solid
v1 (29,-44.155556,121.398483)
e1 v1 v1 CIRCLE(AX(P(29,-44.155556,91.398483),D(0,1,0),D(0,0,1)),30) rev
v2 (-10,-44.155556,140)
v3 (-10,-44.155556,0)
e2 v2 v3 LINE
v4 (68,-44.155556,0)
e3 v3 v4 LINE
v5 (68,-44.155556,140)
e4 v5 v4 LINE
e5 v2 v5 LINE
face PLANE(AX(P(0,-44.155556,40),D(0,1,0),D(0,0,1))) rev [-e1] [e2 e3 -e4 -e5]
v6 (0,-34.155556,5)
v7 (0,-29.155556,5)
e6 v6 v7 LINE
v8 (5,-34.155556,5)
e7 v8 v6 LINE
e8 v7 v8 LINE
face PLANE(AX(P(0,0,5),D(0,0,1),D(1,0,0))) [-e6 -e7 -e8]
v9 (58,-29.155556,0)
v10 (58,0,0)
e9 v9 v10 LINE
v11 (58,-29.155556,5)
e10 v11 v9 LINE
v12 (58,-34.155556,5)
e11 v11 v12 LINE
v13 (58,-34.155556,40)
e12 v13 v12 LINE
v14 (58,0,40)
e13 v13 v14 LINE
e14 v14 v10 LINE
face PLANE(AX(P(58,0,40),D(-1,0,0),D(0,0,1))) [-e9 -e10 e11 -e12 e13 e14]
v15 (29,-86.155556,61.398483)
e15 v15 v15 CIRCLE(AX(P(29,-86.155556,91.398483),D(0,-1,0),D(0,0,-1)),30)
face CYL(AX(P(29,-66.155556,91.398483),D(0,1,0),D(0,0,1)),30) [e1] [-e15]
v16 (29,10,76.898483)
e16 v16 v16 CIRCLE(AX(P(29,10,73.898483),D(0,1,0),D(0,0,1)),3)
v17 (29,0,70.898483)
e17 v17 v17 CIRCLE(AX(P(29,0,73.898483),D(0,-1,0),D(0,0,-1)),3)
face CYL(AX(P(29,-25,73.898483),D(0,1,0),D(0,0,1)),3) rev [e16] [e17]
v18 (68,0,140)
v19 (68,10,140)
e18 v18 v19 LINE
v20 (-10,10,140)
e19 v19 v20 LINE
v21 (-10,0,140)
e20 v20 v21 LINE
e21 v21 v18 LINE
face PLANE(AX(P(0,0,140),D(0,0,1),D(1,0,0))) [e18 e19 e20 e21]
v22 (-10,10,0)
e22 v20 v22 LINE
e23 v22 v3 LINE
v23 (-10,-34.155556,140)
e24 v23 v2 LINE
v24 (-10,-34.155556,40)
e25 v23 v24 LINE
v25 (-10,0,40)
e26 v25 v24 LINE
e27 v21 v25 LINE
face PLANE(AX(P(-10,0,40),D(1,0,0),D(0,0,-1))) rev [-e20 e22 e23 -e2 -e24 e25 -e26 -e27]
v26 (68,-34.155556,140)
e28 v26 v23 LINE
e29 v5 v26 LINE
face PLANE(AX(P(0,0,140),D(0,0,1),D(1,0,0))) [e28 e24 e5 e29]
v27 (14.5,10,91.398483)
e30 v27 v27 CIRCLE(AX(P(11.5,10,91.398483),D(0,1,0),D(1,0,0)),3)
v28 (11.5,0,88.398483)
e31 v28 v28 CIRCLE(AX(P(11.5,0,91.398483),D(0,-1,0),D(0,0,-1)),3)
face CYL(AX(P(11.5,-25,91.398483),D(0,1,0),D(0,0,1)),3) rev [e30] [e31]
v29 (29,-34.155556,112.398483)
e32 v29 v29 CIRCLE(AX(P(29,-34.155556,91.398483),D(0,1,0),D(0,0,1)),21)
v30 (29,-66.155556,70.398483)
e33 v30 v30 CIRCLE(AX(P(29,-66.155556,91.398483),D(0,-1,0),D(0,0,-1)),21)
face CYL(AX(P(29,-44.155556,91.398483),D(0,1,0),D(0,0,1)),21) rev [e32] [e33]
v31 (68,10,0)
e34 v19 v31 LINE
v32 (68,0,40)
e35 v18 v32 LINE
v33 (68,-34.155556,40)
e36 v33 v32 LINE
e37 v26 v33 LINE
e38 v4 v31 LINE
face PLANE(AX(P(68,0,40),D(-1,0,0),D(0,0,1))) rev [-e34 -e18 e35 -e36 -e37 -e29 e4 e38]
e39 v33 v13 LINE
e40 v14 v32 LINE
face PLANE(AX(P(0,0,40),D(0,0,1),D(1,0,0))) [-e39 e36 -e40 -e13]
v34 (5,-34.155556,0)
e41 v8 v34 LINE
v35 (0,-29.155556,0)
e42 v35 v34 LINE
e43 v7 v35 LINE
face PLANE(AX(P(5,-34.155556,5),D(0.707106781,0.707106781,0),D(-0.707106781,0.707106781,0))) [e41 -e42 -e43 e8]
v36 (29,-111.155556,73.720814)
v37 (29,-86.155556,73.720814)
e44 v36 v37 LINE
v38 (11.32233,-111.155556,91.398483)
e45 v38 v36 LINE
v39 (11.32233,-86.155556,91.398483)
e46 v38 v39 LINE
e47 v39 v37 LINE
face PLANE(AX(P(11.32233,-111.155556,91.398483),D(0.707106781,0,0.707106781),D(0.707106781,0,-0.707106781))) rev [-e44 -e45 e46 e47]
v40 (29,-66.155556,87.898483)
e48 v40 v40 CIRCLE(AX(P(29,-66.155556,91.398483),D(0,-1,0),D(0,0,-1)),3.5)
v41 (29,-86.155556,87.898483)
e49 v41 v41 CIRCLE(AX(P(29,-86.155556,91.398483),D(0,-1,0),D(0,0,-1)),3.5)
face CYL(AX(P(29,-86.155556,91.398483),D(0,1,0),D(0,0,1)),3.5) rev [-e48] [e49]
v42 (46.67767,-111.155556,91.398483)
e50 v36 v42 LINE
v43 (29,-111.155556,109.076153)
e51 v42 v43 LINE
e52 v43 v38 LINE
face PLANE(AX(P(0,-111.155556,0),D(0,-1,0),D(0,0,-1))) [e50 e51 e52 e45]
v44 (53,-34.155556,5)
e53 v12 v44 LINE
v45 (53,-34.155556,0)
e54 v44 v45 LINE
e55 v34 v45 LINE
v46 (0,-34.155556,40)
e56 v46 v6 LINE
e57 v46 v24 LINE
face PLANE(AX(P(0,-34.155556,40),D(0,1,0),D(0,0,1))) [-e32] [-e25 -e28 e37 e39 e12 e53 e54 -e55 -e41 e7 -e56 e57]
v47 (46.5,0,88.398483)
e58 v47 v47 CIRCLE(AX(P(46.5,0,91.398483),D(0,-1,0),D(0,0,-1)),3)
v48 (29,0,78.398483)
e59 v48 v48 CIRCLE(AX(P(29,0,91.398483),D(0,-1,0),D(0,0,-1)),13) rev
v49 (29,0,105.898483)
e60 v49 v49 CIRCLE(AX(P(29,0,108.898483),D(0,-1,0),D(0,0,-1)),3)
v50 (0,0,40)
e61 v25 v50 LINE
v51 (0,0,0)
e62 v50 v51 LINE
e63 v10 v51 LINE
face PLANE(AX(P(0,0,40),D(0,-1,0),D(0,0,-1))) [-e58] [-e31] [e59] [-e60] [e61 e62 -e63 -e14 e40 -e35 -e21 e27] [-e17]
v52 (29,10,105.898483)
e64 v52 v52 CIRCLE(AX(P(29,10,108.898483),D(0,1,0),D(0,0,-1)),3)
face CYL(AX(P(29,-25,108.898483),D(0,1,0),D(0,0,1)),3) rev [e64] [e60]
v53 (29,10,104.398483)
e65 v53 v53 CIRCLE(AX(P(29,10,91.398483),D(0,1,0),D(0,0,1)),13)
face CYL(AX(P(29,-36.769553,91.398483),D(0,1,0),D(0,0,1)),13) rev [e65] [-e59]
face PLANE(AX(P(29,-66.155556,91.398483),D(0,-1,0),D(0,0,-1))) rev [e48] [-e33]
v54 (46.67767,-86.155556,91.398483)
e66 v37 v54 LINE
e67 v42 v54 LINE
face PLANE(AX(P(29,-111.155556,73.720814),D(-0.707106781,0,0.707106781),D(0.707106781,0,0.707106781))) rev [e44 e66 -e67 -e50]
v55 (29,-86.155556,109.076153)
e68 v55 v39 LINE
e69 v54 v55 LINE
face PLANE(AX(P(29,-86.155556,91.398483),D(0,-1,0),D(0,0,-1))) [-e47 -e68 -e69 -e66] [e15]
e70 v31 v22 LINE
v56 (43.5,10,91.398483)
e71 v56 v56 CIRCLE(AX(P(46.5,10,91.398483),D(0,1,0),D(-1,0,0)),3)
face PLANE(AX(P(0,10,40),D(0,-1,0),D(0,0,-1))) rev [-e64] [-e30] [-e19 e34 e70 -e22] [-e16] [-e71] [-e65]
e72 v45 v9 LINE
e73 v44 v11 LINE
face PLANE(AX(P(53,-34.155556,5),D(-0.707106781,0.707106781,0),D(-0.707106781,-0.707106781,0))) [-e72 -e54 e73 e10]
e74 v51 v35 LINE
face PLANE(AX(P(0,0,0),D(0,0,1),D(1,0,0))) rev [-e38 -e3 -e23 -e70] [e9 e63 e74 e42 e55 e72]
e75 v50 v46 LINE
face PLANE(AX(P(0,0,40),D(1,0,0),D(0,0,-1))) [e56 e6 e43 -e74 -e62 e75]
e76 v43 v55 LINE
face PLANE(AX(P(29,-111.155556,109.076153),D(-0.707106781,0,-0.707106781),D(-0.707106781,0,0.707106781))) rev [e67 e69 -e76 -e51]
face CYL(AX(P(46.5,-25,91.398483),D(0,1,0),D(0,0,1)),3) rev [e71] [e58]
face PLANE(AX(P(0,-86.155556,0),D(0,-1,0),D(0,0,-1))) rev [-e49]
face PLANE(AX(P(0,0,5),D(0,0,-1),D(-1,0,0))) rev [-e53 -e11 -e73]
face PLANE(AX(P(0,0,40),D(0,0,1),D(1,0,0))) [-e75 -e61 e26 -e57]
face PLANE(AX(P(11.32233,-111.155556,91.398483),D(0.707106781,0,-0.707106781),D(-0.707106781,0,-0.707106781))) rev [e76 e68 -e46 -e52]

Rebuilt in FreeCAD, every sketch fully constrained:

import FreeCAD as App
import Part
import Sketcher

doc = App.newDocument("Part")
body = doc.addObject("PartDesign::Body", "Body")

sketch1 = body.newObject("Sketcher::SketchObject", "Sketch")
sketch1.AttachmentSupport = (doc.getObject("XY_Plane"), [""])
sketch1.MapMode = "FlatFace"
sketch1.addGeometry([
    Part.LineSegment(App.Vector(-10, 10, 0), App.Vector(-10, -44, 0)),
    Part.LineSegment(App.Vector(-10, -44, 0), App.Vector(68, -44, 0)),
    Part.LineSegment(App.Vector(68, -44, 0), App.Vector(68, 10, 0)),
    Part.LineSegment(App.Vector(68, 10, 0), App.Vector(-10, 10, 0)),
    Part.LineSegment(App.Vector(58, -34, 0), App.Vector(0, -34, 0)),
    Part.LineSegment(App.Vector(0, -34, 0), App.Vector(0, 0, 0)),
    Part.LineSegment(App.Vector(0, 0, 0), App.Vector(58, 0, 0)),
    Part.LineSegment(App.Vector(58, 0, 0), App.Vector(58, -34, 0)),
], False)
sketch1.addConstraint([
    Sketcher.Constraint("Coincident", 0, 2, 1, 1),
    Sketcher.Constraint("Coincident", 1, 2, 2, 1),
    Sketcher.Constraint("Coincident", 2, 2, 3, 1),
    Sketcher.Constraint("Coincident", 3, 2, 0, 1),
    Sketcher.Constraint("Coincident", 4, 2, 5, 1),
    Sketcher.Constraint("Coincident", 5, 2, 6, 1),
    Sketcher.Constraint("Coincident", 6, 2, 7, 1),
    Sketcher.Constraint("Coincident", 7, 2, 4, 1),
    Sketcher.Constraint("Vertical", 0),
    Sketcher.Constraint("Horizontal", 1),
    Sketcher.Constraint("Vertical", 2),
    Sketcher.Constraint("Horizontal", 3),
    Sketcher.Constraint("Horizontal", 4),
    Sketcher.Constraint("Vertical", 5),
    Sketcher.Constraint("Horizontal", 6),
    Sketcher.Constraint("Vertical", 7),
    Sketcher.Constraint("Coincident", 5, 2, -1, 1),
    Sketcher.Constraint("DistanceX", 1, 1, 1, 2, 78.0),
    Sketcher.Constraint("DistanceX", 4, 2, 4, 1, 58.0),
    Sketcher.Constraint("DistanceX", 0, 2, -1, 1, 10.0),
    Sketcher.Constraint("DistanceY", -1, 1, 2, 2, 10.0),
    Sketcher.Constraint("DistanceY", 0, 2, 4, 2, 10.0),
    Sketcher.Constraint("DistanceY", 0, 2, 0, 1, 54.155556),
])
pad1 = body.newObject("PartDesign::Pad", "Pad")
pad1.Profile = sketch1
pad1.Length = 40

sketch2 = body.newObject("Sketcher::SketchObject", "Sketch001")
sketch2.AttachmentSupport = (doc.getObject("XY_Plane"), [""])
sketch2.MapMode = "FlatFace"
sketch2.AttachmentOffset = App.Placement(App.Vector(0, 0, 40), App.Rotation())
sketch2.addGeometry([
    Part.LineSegment(App.Vector(-10, -34, 0), App.Vector(-10, -44, 0)),
    Part.LineSegment(App.Vector(-10, -44, 0), App.Vector(68, -44, 0)),
    Part.LineSegment(App.Vector(68, -44, 0), App.Vector(68, -34, 0)),
    Part.LineSegment(App.Vector(68, -34, 0), App.Vector(-10, -34, 0)),
], False)
sketch2.addConstraint([
    Sketcher.Constraint("Coincident", 0, 2, 1, 1),
    Sketcher.Constraint("Coincident", 1, 2, 2, 1),
    Sketcher.Constraint("Coincident", 2, 2, 3, 1),
    Sketcher.Constraint("Coincident", 3, 2, 0, 1),
    Sketcher.Constraint("Vertical", 0),
    Sketcher.Constraint("Horizontal", 1),
    Sketcher.Constraint("Vertical", 2),
    Sketcher.Constraint("Horizontal", 3),
    Sketcher.Constraint("DistanceX", 1, 1, 1, 2, 78.0),
    Sketcher.Constraint("DistanceY", 0, 2, 0, 1, 10.0),
    Sketcher.Constraint("DistanceX", 0, 2, -1, 1, 10.0),
    Sketcher.Constraint("DistanceY", 0, 2, -1, 1, 44.155556),
])
pad2 = body.newObject("PartDesign::Pad", "Pad001")
pad2.Profile = sketch2
pad2.Length = 100

sketch3 = body.newObject("Sketcher::SketchObject", "Sketch002")
sketch3.AttachmentSupport = (doc.getObject("XY_Plane"), [""])
sketch3.MapMode = "FlatFace"
sketch3.addGeometry([
    Part.LineSegment(App.Vector(58, -29, 0), App.Vector(58, -34, 0)),
    Part.LineSegment(App.Vector(58, -34, 0), App.Vector(53, -34, 0)),
    Part.LineSegment(App.Vector(53, -34, 0), App.Vector(58, -29, 0)),
    Part.LineSegment(App.Vector(0, -34, 0), App.Vector(0, -29, 0)),
    Part.LineSegment(App.Vector(0, -29, 0), App.Vector(5, -34, 0)),
    Part.LineSegment(App.Vector(5, -34, 0), App.Vector(0, -34, 0)),
], False)
sketch3.addConstraint([
    Sketcher.Constraint("Coincident", 0, 2, 1, 1),
    Sketcher.Constraint("Coincident", 1, 2, 2, 1),
    Sketcher.Constraint("Coincident", 2, 2, 0, 1),
    Sketcher.Constraint("Coincident", 3, 2, 4, 1),
    Sketcher.Constraint("Coincident", 4, 2, 5, 1),
    Sketcher.Constraint("Coincident", 5, 2, 3, 1),
    Sketcher.Constraint("Vertical", 0),
    Sketcher.Constraint("Horizontal", 1),
    Sketcher.Constraint("Vertical", 3),
    Sketcher.Constraint("Horizontal", 5),
    Sketcher.Constraint("PointOnObject", 3, 2, -2),
    Sketcher.Constraint("Perpendicular", 2, 4),
    Sketcher.Constraint("Horizontal", 2, 2, 3, 2),
    Sketcher.Constraint("Horizontal", 1, 2, 4, 2),
    Sketcher.Constraint("Equal", 1, 5),
    Sketcher.Constraint("DistanceX", 1, 2, 1, 1, 5.0),
    Sketcher.Constraint("DistanceX", -1, 1, 0, 2, 58.0),
    Sketcher.Constraint("DistanceY", 0, 2, -1, 1, 34.155556),
])
pad3 = body.newObject("PartDesign::Pad", "Pad002")
pad3.Profile = sketch3
pad3.Length = 5

sketch4 = body.newObject("Sketcher::SketchObject", "Sketch003")
sketch4.AttachmentSupport = (doc.getObject("XZ_Plane"), [""])
sketch4.MapMode = "FlatFace"
sketch4.AttachmentOffset = App.Placement(App.Vector(0, 0, 34.155556), App.Rotation())
sketch4.addGeometry(Part.Circle(App.Vector(29, 91, 0), App.Vector(0, 0, 1), 21), False)
sketch4.addConstraint([
    Sketcher.Constraint("Diameter", 0, 42.0),
    Sketcher.Constraint("DistanceX", -1, 1, 0, 3, 29.0),
    Sketcher.Constraint("DistanceY", -1, 1, 0, 3, 91.398483),
])
pocket1 = body.newObject("PartDesign::Pocket", "Pocket")
pocket1.Profile = sketch4
pocket1.Type = "ThroughAll"
pocket1.Reversed = True

sketch5 = body.newObject("Sketcher::SketchObject", "Sketch004")
sketch5.AttachmentSupport = (doc.getObject("XY_Plane"), [""])
sketch5.MapMode = "FlatFace"
sketch5.AttachmentOffset = App.Placement(App.Vector(0, 0, 40), App.Rotation())
sketch5.addGeometry([
    Part.LineSegment(App.Vector(-10, 10, 0), App.Vector(-10, 0, 0)),
    Part.LineSegment(App.Vector(-10, 0, 0), App.Vector(68, 0, 0)),
    Part.LineSegment(App.Vector(68, 0, 0), App.Vector(68, 10, 0)),
    Part.LineSegment(App.Vector(68, 10, 0), App.Vector(-10, 10, 0)),
], False)
sketch5.addConstraint([
    Sketcher.Constraint("Coincident", 0, 2, 1, 1),
    Sketcher.Constraint("Coincident", 1, 2, 2, 1),
    Sketcher.Constraint("Coincident", 2, 2, 3, 1),
    Sketcher.Constraint("Coincident", 3, 2, 0, 1),
    Sketcher.Constraint("Vertical", 0),
    Sketcher.Constraint("Horizontal", 1),
    Sketcher.Constraint("Vertical", 2),
    Sketcher.Constraint("Horizontal", 3),
    Sketcher.Constraint("PointOnObject", 0, 2, -1),
    Sketcher.Constraint("DistanceX", 1, 1, 1, 2, 78.0),
    Sketcher.Constraint("DistanceY", 0, 2, 0, 1, 10.0),
    Sketcher.Constraint("DistanceX", 0, 2, -1, 1, 10.0),
])
pad4 = body.newObject("PartDesign::Pad", "Pad003")
pad4.Profile = sketch5
pad4.Length = 100

sketch6 = body.newObject("Sketcher::SketchObject", "Sketch005")
sketch6.AttachmentSupport = (doc.getObject("XZ_Plane"), [""])
sketch6.MapMode = "FlatFace"
sketch6.AttachmentOffset = App.Placement(App.Vector(0, 0, -10), App.Rotation())
sketch6.addGeometry(Part.Circle(App.Vector(29, 91, 0), App.Vector(0, 0, 1), 13), False)
sketch6.addConstraint([
    Sketcher.Constraint("Diameter", 0, 26.0),
    Sketcher.Constraint("DistanceX", -1, 1, 0, 3, 29.0),
    Sketcher.Constraint("DistanceY", -1, 1, 0, 3, 91.398483),
])
pocket2 = body.newObject("PartDesign::Pocket", "Pocket001")
pocket2.Profile = sketch6
pocket2.Type = "UpToFirst"
pocket2.Reversed = True

sketch7 = body.newObject("Sketcher::SketchObject", "Sketch006")
sketch7.AttachmentSupport = (doc.getObject("XZ_Plane"), [""])
sketch7.MapMode = "FlatFace"
sketch7.AttachmentOffset = App.Placement(App.Vector(0, 0, -10), App.Rotation())
sketch7.addGeometry(Part.Circle(App.Vector(29, 73.9, 0), App.Vector(0, 0, 1), 3), False)
sketch7.addConstraint([
    Sketcher.Constraint("Diameter", 0, 6.0),
    Sketcher.Constraint("DistanceX", -1, 1, 0, 3, 29.0),
    Sketcher.Constraint("DistanceY", -1, 1, 0, 3, 73.898483),
])
pocket3 = body.newObject("PartDesign::Pocket", "Pocket002")
pocket3.Profile = sketch7
pocket3.Length = 35
pocket3.Reversed = True
doc.recompute()

datumline = body.newObject("PartDesign::Line", "DatumLine")
datumline.Placement = App.Placement(App.Vector(29, 0, 91.398483), App.Rotation(App.Vector(0, 0, 1), App.Vector(0, 1, 0)))
polarpattern = body.newObject("PartDesign::PolarPattern", "PolarPattern")
polarpattern.Originals = [pocket3]
polarpattern.Axis = (datumline, [""])
polarpattern.Angle = 360
polarpattern.Occurrences = 4
body.Tip = polarpattern

sketch8 = body.newObject("Sketcher::SketchObject", "Sketch007")
sketch8.AttachmentSupport = (doc.getObject("XZ_Plane"), [""])
sketch8.MapMode = "FlatFace"
sketch8.AttachmentOffset = App.Placement(App.Vector(0, 0, 44.155556), App.Rotation())
sketch8.addGeometry([
    Part.Circle(App.Vector(29, 91, 0), App.Vector(0, 0, 1), 30),
    Part.Circle(App.Vector(29, 91, 0), App.Vector(0, 0, 1), 21),
], False)
sketch8.addConstraint([
    Sketcher.Constraint("Coincident", 1, 3, 0, 3),
    Sketcher.Constraint("Diameter", 0, 60.0),
    Sketcher.Constraint("Diameter", 1, 42.0),
    Sketcher.Constraint("DistanceX", -1, 1, 0, 3, 29.0),
    Sketcher.Constraint("DistanceY", -1, 1, 0, 3, 91.398483),
])
pad5 = body.newObject("PartDesign::Pad", "Pad004")
pad5.Profile = sketch8
pad5.Length = 22

sketch9 = body.newObject("Sketcher::SketchObject", "Sketch008")
sketch9.AttachmentSupport = (doc.getObject("XZ_Plane"), [""])
sketch9.MapMode = "FlatFace"
sketch9.AttachmentOffset = App.Placement(App.Vector(0, 0, 66.155556), App.Rotation())
sketch9.addGeometry([
    Part.Circle(App.Vector(29, 91.4, 0), App.Vector(0, 0, 1), 30),
    Part.Circle(App.Vector(29, 91.4, 0), App.Vector(0, 0, 1), 3.5),
], False)
sketch9.addConstraint([
    Sketcher.Constraint("Coincident", 1, 3, 0, 3),
    Sketcher.Constraint("Diameter", 0, 60.0),
    Sketcher.Constraint("Diameter", 1, 7.0),
    Sketcher.Constraint("DistanceX", -1, 1, 0, 3, 29.0),
    Sketcher.Constraint("DistanceY", -1, 1, 0, 3, 91.398483),
])
pad6 = body.newObject("PartDesign::Pad", "Pad005")
pad6.Profile = sketch9
pad6.Length = 20

sketch10 = body.newObject("Sketcher::SketchObject", "Sketch009")
sketch10.AttachmentSupport = (doc.getObject("XZ_Plane"), [""])
sketch10.MapMode = "FlatFace"
sketch10.AttachmentOffset = App.Placement(App.Vector(0, 0, 86.155556), App.Rotation())
sketch10.addGeometry([
    Part.LineSegment(App.Vector(29, 109, 0), App.Vector(11, 91, 0)),
    Part.LineSegment(App.Vector(11, 91, 0), App.Vector(29, 74, 0)),
    Part.LineSegment(App.Vector(29, 74, 0), App.Vector(47, 91, 0)),
    Part.LineSegment(App.Vector(47, 91, 0), App.Vector(29, 109, 0)),
], False)
sketch10.addConstraint([
    Sketcher.Constraint("Coincident", 0, 2, 1, 1),
    Sketcher.Constraint("Coincident", 1, 2, 2, 1),
    Sketcher.Constraint("Coincident", 2, 2, 3, 1),
    Sketcher.Constraint("Coincident", 3, 2, 0, 1),
    Sketcher.Constraint("Perpendicular", 0, 1),
    Sketcher.Constraint("Perpendicular", 1, 2),
    Sketcher.Constraint("Perpendicular", 2, 3),
    Sketcher.Constraint("Horizontal", 0, 2, 2, 2),
    Sketcher.Constraint("Vertical", 1, 2, 3, 2),
    Sketcher.Constraint("Distance", 0, 25.0),
    Sketcher.Constraint("DistanceX", -1, 1, 1, 2, 29.0),
    Sketcher.Constraint("DistanceY", -1, 1, 0, 2, 91.398483),
])
pad7 = body.newObject("PartDesign::Pad", "Pad006")
pad7.Profile = sketch10
pad7.Length = 25

doc.recompute()
